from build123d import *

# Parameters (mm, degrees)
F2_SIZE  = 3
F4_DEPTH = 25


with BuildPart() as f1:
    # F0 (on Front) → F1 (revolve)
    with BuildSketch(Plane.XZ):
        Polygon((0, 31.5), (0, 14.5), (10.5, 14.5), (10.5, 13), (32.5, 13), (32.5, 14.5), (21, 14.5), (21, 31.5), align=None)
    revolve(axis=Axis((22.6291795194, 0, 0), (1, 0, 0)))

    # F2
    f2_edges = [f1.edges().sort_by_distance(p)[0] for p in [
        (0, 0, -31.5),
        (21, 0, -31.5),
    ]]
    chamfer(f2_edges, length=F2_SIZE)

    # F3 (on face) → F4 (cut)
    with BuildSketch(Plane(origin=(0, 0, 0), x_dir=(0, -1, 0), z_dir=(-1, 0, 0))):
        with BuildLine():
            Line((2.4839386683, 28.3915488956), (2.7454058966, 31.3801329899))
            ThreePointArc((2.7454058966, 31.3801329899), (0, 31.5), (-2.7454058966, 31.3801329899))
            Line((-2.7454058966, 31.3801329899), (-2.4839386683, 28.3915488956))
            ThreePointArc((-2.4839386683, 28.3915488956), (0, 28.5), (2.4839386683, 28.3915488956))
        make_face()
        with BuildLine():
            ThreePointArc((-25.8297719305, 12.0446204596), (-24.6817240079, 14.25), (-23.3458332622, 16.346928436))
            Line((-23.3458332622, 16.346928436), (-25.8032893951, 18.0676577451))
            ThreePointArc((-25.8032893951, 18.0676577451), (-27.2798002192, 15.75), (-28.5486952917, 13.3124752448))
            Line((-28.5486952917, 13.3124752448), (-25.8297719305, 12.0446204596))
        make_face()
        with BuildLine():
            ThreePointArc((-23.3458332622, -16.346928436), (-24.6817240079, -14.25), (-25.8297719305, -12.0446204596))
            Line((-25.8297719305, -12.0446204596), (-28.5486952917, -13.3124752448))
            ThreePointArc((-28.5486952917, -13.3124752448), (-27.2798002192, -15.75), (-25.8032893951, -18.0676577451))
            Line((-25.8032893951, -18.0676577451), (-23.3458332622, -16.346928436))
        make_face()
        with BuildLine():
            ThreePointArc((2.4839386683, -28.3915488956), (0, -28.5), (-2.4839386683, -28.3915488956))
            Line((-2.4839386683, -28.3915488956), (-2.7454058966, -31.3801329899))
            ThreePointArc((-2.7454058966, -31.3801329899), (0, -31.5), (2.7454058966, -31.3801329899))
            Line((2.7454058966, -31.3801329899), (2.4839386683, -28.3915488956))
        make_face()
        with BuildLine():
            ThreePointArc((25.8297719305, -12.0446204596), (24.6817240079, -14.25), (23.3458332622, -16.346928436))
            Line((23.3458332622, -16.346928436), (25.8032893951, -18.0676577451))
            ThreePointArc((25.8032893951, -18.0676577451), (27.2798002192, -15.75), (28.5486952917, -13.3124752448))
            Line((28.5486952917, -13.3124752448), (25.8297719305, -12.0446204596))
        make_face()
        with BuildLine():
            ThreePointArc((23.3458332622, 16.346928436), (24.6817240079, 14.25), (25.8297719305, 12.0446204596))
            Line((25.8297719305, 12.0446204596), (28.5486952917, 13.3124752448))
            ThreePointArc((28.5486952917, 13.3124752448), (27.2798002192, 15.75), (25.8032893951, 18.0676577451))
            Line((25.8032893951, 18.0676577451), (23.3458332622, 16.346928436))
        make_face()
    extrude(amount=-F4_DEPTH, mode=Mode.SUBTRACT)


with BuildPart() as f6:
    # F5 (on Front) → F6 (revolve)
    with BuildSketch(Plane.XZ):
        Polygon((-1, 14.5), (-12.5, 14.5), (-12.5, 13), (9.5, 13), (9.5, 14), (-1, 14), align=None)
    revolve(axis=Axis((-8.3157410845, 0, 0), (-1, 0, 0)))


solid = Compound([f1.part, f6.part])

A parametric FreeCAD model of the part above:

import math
import FreeCAD as App
import Part
import Sketcher
from FreeCAD import Vector
Q = App.Units.Quantity


def edges_at(feature, points):
    """Names of the edges that pass closest to the given points."""
    edges = feature.Shape.Edges
    near = lambda p: min(range(len(edges)), key=lambda i: edges[i].distToShape(Part.Vertex(*p))[0])
    return sorted({f"Edge{near(p) + 1}" for p in points})


def add_polygon(sketch, points):
    """Adds a closed chain of lines whose ends are joined by coincident constraints."""
    first, n = sketch.GeometryCount, len(points)
    for a, b in zip(points, points[1:] + points[:1]):
        sketch.addGeometry(Part.LineSegment(App.Vector(*a, 0), App.Vector(*b, 0)), False)
    for i in range(n):
        sketch.addConstraint(Sketcher.Constraint("Coincident", first + i, 2, first + (i + 1) % n, 1))

doc = App.newDocument("Part")
body = doc.addObject("PartDesign::Body", "Body")

sketch1 = body.newObject("Sketcher::SketchObject", "Sketch")
sketch1.AttachmentSupport = (doc.getObject("XZ_Plane"), [""])
sketch1.MapMode = "FlatFace"
add_polygon(sketch1, [(0, 31.5), (0, 14.5), (10.5, 14.5), (10.5, 13), (32.5, 13), (32.5, 14.5), (21, 14.5), (21, 31.5)])
sketch1.addConstraint([
    Sketcher.Constraint("Vertical", 0),
    Sketcher.Constraint("Horizontal", 1),
    Sketcher.Constraint("Vertical", 2),
    Sketcher.Constraint("Horizontal", 3),
    Sketcher.Constraint("Vertical", 4),
    Sketcher.Constraint("Horizontal", 5),
    Sketcher.Constraint("Vertical", 6),
    Sketcher.Constraint("Horizontal", 7),
    Sketcher.Constraint("PointOnObject", 0, 2, -2),
    Sketcher.Constraint("Horizontal", 1, 2, 4, 2),
    Sketcher.Constraint("DistanceX", 3, 1, 3, 2, 22.0),
    Sketcher.Constraint("DistanceX", 7, 2, 7, 1, 21.0),
    Sketcher.Constraint("DistanceY", 0, 2, 0, 1, 17.0),
    Sketcher.Constraint("DistanceX", 1, 1, 1, 2, 10.5),
    Sketcher.Constraint("DistanceY", 2, 2, 2, 1, 1.5),
    Sketcher.Constraint("DistanceY", -1, 1, 2, 2, 13.0),
])
revolution = body.newObject("PartDesign::Revolution", "Revolution")
revolution.Profile = sketch1
revolution.ReferenceAxis = (sketch1, ["H_Axis"])
revolution.Angle = 360
doc.recompute()

chamfer = body.newObject("PartDesign::Chamfer", "Chamfer")
chamfer.Base = (revolution, edges_at(revolution, [(0, 0, -31.5), (21, 0, -31.5)]))
chamfer.Size = 3

sketch2 = body.newObject("Sketcher::SketchObject", "Sketch001")
sketch2.AttachmentSupport = (doc.getObject("YZ_Plane"), [""])
sketch2.MapMode = "FlatFace"
sketch2.addGeometry([
    Part.LineSegment(Vector(-2.483939, 28.391549, 0), Vector(-2.745406, 31.380133, 0)),
    Part.ArcOfCircle(Part.Circle(Vector(0, 0, 0), Vector(0, 0, 1), 31.5), math.radians(85), math.radians(95)),
    Part.LineSegment(Vector(2.745406, 31.380133, 0), Vector(2.483939, 28.391549, 0)),
    Part.ArcOfCircle(Part.Circle(Vector(0, 0, 0), Vector(0, 0, 1), 28.5), math.radians(85), math.radians(95)),
    Part.ArcOfCircle(Part.Circle(Vector(0, 0, 0), Vector(0, 0, 1), 28.5), math.radians(25), math.radians(35)),
    Part.LineSegment(Vector(23.345833, 16.346928, 0), Vector(25.803289, 18.067658, 0)),
    Part.ArcOfCircle(Part.Circle(Vector(0, 0, 0), Vector(0, 0, 1), 31.5), math.radians(25), math.radians(35)),
    Part.LineSegment(Vector(28.548695, 13.312475, 0), Vector(25.829772, 12.04462, 0)),
    Part.ArcOfCircle(Part.Circle(Vector(0, 0, 0), Vector(0, 0, 1), 28.5), math.radians(-35), math.radians(-25)),
    Part.LineSegment(Vector(25.829772, -12.04462, 0), Vector(28.548695, -13.312475, 0)),
    Part.ArcOfCircle(Part.Circle(Vector(0, 0, 0), Vector(0, 0, 1), 31.5), math.radians(-35), math.radians(-25)),
    Part.LineSegment(Vector(25.803289, -18.067658, 0), Vector(23.345833, -16.346928, 0)),
    Part.ArcOfCircle(Part.Circle(Vector(0, 0, 0), Vector(0, 0, 1), 28.5), math.radians(-95), math.radians(-85)),
    Part.LineSegment(Vector(2.483939, -28.391549, 0), Vector(2.745406, -31.380133, 0)),
    Part.ArcOfCircle(Part.Circle(Vector(0, 0, 0), Vector(0, 0, 1), 31.5), math.radians(-95), math.radians(-85)),
    Part.LineSegment(Vector(-2.745406, -31.380133, 0), Vector(-2.483939, -28.391549, 0)),
    Part.ArcOfCircle(Part.Circle(Vector(0, 0, 0), Vector(0, 0, 1), 28.5), math.radians(-155), math.radians(-145)),
    Part.LineSegment(Vector(-23.345833, -16.346928, 0), Vector(-25.803289, -18.067658, 0)),
    Part.ArcOfCircle(Part.Circle(Vector(0, 0, 0), Vector(0, 0, 1), 31.5), math.radians(-155), math.radians(-145)),
    Part.LineSegment(Vector(-28.548695, -13.312475, 0), Vector(-25.829772, -12.04462, 0)),
    Part.ArcOfCircle(Part.Circle(Vector(0, 0, 0), Vector(0, 0, 1), 28.5), math.radians(145), math.radians(155)),
    Part.LineSegment(Vector(-25.829772, 12.04462, 0), Vector(-28.548695, 13.312475, 0)),
    Part.ArcOfCircle(Part.Circle(Vector(0, 0, 0), Vector(0, 0, 1), 31.5), math.radians(145), math.radians(155)),
    Part.LineSegment(Vector(-25.803289, 18.067658, 0), Vector(-23.345833, 16.346928, 0)),
], False)
sketch2.addConstraint([
    Sketcher.Constraint("Coincident", 0, 2, 1, 2),
    Sketcher.Constraint("Coincident", 1, 1, 2, 1),
    Sketcher.Constraint("Coincident", 2, 2, 3, 1),
    Sketcher.Constraint("Coincident", 3, 2, 0, 1),
    Sketcher.Constraint("Coincident", 4, 2, 5, 1),
    Sketcher.Constraint("Coincident", 5, 2, 6, 2),
    Sketcher.Constraint("Coincident", 6, 1, 7, 1),
    Sketcher.Constraint("Coincident", 7, 2, 4, 1),
    Sketcher.Constraint("Coincident", 8, 2, 9, 1),
    Sketcher.Constraint("Coincident", 9, 2, 10, 2),
    Sketcher.Constraint("Coincident", 10, 1, 11, 1),
    Sketcher.Constraint("Coincident", 11, 2, 8, 1),
    Sketcher.Constraint("Coincident", 12, 2, 13, 1),
    Sketcher.Constraint("Coincident", 13, 2, 14, 2),
    Sketcher.Constraint("Coincident", 14, 1, 15, 1),
    Sketcher.Constraint("Coincident", 15, 2, 12, 1),
    Sketcher.Constraint("Coincident", 16, 2, 17, 1),
    Sketcher.Constraint("Coincident", 17, 2, 18, 2),
    Sketcher.Constraint("Coincident", 18, 1, 19, 1),
    Sketcher.Constraint("Coincident", 19, 2, 16, 1),
    Sketcher.Constraint("Coincident", 20, 2, 21, 1),
    Sketcher.Constraint("Coincident", 21, 2, 22, 2),
    Sketcher.Constraint("Coincident", 22, 1, 23, 1),
    Sketcher.Constraint("Coincident", 23, 2, 20, 1),
    Sketcher.Constraint("Coincident", 1, 3, -1, 1),
    Sketcher.Constraint("Coincident", 3, 3, -1, 1),
    Sketcher.Constraint("Coincident", 4, 3, -1, 1),
    Sketcher.Constraint("Coincident", 6, 3, -1, 1),
    Sketcher.Constraint("Coincident", 8, 3, -1, 1),
    Sketcher.Constraint("Coincident", 10, 3, -1, 1),
    Sketcher.Constraint("Coincident", 12, 3, -1, 1),
    Sketcher.Constraint("Coincident", 14, 3, -1, 1),
    Sketcher.Constraint("Coincident", 16, 3, -1, 1),
    Sketcher.Constraint("Coincident", 18, 3, -1, 1),
    Sketcher.Constraint("Coincident", 20, 3, -1, 1),
    Sketcher.Constraint("Coincident", 22, 3, -1, 1),
    Sketcher.Constraint("Equal", 3, 4),
    Sketcher.Constraint("Equal", 1, 6),
    Sketcher.Constraint("Equal", 4, 8),
    Sketcher.Constraint("Equal", 6, 10),
    Sketcher.Constraint("Equal", 8, 12),
    Sketcher.Constraint("Equal", 10, 14),
    Sketcher.Constraint("Equal", 12, 16),
    Sketcher.Constraint("Equal", 14, 18),
    Sketcher.Constraint("Equal", 16, 20),
    Sketcher.Constraint("Equal", 18, 22),
    Sketcher.Constraint("Parallel", 0, 13),
    Sketcher.Constraint("Parallel", 2, 15),
    Sketcher.Constraint("Parallel", 5, 17),
    Sketcher.Constraint("Parallel", 7, 19),
    Sketcher.Constraint("Parallel", 9, 21),
    Sketcher.Constraint("Parallel", 11, 23),
    Sketcher.Constraint("Horizontal", 0, 2, 1, 1),
    Sketcher.Constraint("Horizontal", 2, 2, 3, 2),
    Sketcher.Constraint("Horizontal", 13, 2, 14, 1),
    Sketcher.Constraint("Horizontal", 11, 2, 16, 2),
    Sketcher.Constraint("Horizontal", 10, 1, 17, 2),
    Sketcher.Constraint("Horizontal", 9, 2, 18, 1),
    Sketcher.Constraint("Horizontal", 8, 2, 19, 2),
    Sketcher.Constraint("Horizontal", 7, 2, 20, 2),
    Sketcher.Constraint("Horizontal", 5, 2, 22, 1),
    Sketcher.Constraint("Vertical", 7, 2, 8, 2),
    Sketcher.Constraint("Vertical", 5, 2, 10, 1),
    Sketcher.Constraint("Vertical", 2, 2, 12, 2),
    Sketcher.Constraint("Radius", 1, 31.5),
    Sketcher.Constraint("Radius", 3, 28.5),
    Sketcher.Constraint("Angle", 0, Q("95 deg")),
    Sketcher.Constraint("Angle", 5, Q("35 deg")),
    Sketcher.Constraint("Angle", 7, Q("-155 deg")),
    Sketcher.Constraint("DistanceX", -1, 1, 2, 2, 2.483939),
    Sketcher.Constraint("DistanceY", -1, 1, 4, 2, 16.346928),
    Sketcher.Constraint("DistanceX", -1, 1, 7, 2, 25.829772),
])
pocket1 = body.newObject("PartDesign::Pocket", "Pocket")
pocket1.Profile = sketch2
pocket1.Length = 25
pocket1.Reversed = True
body2 = doc.addObject("PartDesign::Body", "Body001")

sketch3 = body2.newObject("Sketcher::SketchObject", "Sketch002")
sketch3.AttachmentSupport = (doc.getObject("XZ_Plane001"), [""])
sketch3.MapMode = "FlatFace"
add_polygon(sketch3, [(-1, 14.5), (-12.5, 14.5), (-12.5, 13), (9.5, 13), (9.5, 14), (-1, 14)])
sketch3.addConstraint([
    Sketcher.Constraint("Horizontal", 0),
    Sketcher.Constraint("Vertical", 1),
    Sketcher.Constraint("Horizontal", 2),
    Sketcher.Constraint("Vertical", 3),
    Sketcher.Constraint("Horizontal", 4),
    Sketcher.Constraint("Vertical", 5),
    Sketcher.Constraint("DistanceX", 2, 1, 2, 2, 22.0),
    Sketcher.Constraint("DistanceY", 3, 1, 3, 2, 1.0),
    Sketcher.Constraint("DistanceX", 0, 2, 0, 1, 11.5),
    Sketcher.Constraint("DistanceY", 1, 2, 1, 1, 1.5),
    Sketcher.Constraint("DistanceY", -1, 1, 1, 2, 13.0),
    Sketcher.Constraint("DistanceX", 4, 2, -1, 1, 1.0),
])
revolution2 = body2.newObject("PartDesign::Revolution", "Revolution001")
revolution2.Profile = sketch3
revolution2.ReferenceAxis = (sketch3, ["H_Axis"])
revolution2.Angle = 360

doc.recompute()
